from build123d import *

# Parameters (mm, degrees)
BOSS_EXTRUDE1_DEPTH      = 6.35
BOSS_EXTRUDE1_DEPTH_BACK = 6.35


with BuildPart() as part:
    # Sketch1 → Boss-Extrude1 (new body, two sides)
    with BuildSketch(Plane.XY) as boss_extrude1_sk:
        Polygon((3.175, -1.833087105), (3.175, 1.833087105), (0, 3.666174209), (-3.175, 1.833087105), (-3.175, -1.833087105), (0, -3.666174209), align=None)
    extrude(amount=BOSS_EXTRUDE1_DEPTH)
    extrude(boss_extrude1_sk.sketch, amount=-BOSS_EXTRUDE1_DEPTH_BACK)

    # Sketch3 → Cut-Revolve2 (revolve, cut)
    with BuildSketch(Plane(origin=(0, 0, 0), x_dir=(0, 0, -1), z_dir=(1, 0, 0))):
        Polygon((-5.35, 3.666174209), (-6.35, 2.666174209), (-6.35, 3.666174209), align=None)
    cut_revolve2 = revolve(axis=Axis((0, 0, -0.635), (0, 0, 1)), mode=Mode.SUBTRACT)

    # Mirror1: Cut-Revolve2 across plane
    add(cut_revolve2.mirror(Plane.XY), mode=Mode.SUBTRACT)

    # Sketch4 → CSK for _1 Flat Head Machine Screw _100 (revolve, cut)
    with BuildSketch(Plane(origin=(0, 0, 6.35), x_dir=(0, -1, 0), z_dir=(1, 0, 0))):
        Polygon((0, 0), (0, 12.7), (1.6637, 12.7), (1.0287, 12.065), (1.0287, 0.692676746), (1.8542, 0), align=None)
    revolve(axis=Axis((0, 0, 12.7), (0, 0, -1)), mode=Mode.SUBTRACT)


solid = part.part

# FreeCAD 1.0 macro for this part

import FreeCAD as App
import Part
import Sketcher
Q = App.Units.Quantity


def add_polygon(sketch, points):
    """Adds a closed chain of lines whose ends are joined by coincident constraints."""
    first, n = sketch.GeometryCount, len(points)
    for a, b in zip(points, points[1:] + points[:1]):
        sketch.addGeometry(Part.LineSegment(App.Vector(*a, 0), App.Vector(*b, 0)), False)
    for i in range(n):
        sketch.addConstraint(Sketcher.Constraint("Coincident", first + i, 2, first + (i + 1) % n, 1))

doc = App.newDocument("Part")
body = doc.addObject("PartDesign::Body", "Body")

sketch1 = body.newObject("Sketcher::SketchObject", "Sketch")
sketch1.AttachmentSupport = (doc.getObject("XY_Plane"), [""])
sketch1.MapMode = "FlatFace"
add_polygon(sketch1, [(3.2, -1.8), (3.2, 1.8), (0, 3.7), (-3.2, 1.8), (-3.2, -1.8), (0, -3.7)])
sketch1.addConstraint([
    Sketcher.Constraint("Vertical", 0),
    Sketcher.Constraint("Vertical", 3),
    Sketcher.Constraint("Symmetric", 0, 2, 3, 2, -1, 1),
    Sketcher.Constraint("Symmetric", 1, 2, 4, 2, -1, 1),
    Sketcher.Constraint("PointOnObject", 1, 2, -2),
    Sketcher.Constraint("Parallel", 2, 5),
    Sketcher.Constraint("Horizontal", 0, 2, 2, 2),
    Sketcher.Constraint("Angle", 1, Q("150 deg")),
    Sketcher.Constraint("DistanceX", 2, 2, 0, 2, Q("0.25 in")),
    Sketcher.Constraint("DistanceY", 0, 1, 0, 2, Q("3.666174 mm")),
])
pad1 = body.newObject("PartDesign::Pad", "Pad")
pad1.Profile = sketch1
pad1.Type = "TwoLengths"
pad1.Length = Q("0.25 in")
pad1.Length2 = Q("0.25 in")

sketch2 = body.newObject("Sketcher::SketchObject", "Sketch001")
sketch2.AttachmentSupport = (doc.getObject("YZ_Plane"), [""])
sketch2.MapMode = "FlatFace"
add_polygon(sketch2, [(2.7, 6.3), (3.7, 5.3), (3.7, 6.3)])
sketch2.addConstraint([
    Sketcher.Constraint("Vertical", 1),
    Sketcher.Constraint("Horizontal", 2),
    Sketcher.Constraint("Equal", 2, 1),
    Sketcher.Constraint("DistanceY", -1, 1, 1, 2, Q("0.25 in")),
    Sketcher.Constraint("DistanceX", 2, 2, 2, 1, Q("1 mm")),
    Sketcher.Constraint("DistanceX", -1, 1, 0, 2, Q("3.666174 mm")),
])
groove = body.newObject("PartDesign::Groove", "Groove")
groove.Profile = sketch2
groove.ReferenceAxis = (sketch2, ["V_Axis"])
groove.Angle = 360
doc.recompute()

mirrored = body.newObject("PartDesign::Mirrored", "Mirrored")
mirrored.Originals = [groove]
mirrored.MirrorPlane = (doc.getObject("XY_Plane"), [""])
body.Tip = mirrored

sketch3 = body.newObject("Sketcher::SketchObject", "Sketch002")
sketch3.AttachmentSupport = (doc.getObject("YZ_Plane"), [""])
sketch3.MapMode = "FlatFace"
add_polygon(sketch3, [(0, -6.3), (0, 6.3), (-1.9, 6.3), (-1, 5.7), (-1, -5.7), (-1.7, -6.3)])
sketch3.addConstraint([
    Sketcher.Constraint("Vertical", 0),
    Sketcher.Constraint("Horizontal", 1),
    Sketcher.Constraint("Vertical", 3),
    Sketcher.Constraint("Horizontal", 5),
    Sketcher.Constraint("Symmetric", 0, 2, 5, 2, -1, 1),
    Sketcher.Constraint("DistanceY", 0, 1, 0, 2, Q("0.5 in")),
    Sketcher.Constraint("Angle", 2, Q("-40 deg")),
    Sketcher.Constraint("Angle", 4, Q("-135 deg")),
    Sketcher.Constraint("DistanceX", 1, 2, 1, 1, Q("0.073 in")),
    Sketcher.Constraint("DistanceX", 5, 1, 5, 2, Q("0.0655 in")),
    Sketcher.Constraint("DistanceY", 3, 2, -1, 1, Q("0.225 in")),
])
groove2 = body.newObject("PartDesign::Groove", "Groove001")
groove2.Profile = sketch3
groove2.ReferenceAxis = (sketch3, ["V_Axis"])
groove2.Angle = 360

doc.recompute()
